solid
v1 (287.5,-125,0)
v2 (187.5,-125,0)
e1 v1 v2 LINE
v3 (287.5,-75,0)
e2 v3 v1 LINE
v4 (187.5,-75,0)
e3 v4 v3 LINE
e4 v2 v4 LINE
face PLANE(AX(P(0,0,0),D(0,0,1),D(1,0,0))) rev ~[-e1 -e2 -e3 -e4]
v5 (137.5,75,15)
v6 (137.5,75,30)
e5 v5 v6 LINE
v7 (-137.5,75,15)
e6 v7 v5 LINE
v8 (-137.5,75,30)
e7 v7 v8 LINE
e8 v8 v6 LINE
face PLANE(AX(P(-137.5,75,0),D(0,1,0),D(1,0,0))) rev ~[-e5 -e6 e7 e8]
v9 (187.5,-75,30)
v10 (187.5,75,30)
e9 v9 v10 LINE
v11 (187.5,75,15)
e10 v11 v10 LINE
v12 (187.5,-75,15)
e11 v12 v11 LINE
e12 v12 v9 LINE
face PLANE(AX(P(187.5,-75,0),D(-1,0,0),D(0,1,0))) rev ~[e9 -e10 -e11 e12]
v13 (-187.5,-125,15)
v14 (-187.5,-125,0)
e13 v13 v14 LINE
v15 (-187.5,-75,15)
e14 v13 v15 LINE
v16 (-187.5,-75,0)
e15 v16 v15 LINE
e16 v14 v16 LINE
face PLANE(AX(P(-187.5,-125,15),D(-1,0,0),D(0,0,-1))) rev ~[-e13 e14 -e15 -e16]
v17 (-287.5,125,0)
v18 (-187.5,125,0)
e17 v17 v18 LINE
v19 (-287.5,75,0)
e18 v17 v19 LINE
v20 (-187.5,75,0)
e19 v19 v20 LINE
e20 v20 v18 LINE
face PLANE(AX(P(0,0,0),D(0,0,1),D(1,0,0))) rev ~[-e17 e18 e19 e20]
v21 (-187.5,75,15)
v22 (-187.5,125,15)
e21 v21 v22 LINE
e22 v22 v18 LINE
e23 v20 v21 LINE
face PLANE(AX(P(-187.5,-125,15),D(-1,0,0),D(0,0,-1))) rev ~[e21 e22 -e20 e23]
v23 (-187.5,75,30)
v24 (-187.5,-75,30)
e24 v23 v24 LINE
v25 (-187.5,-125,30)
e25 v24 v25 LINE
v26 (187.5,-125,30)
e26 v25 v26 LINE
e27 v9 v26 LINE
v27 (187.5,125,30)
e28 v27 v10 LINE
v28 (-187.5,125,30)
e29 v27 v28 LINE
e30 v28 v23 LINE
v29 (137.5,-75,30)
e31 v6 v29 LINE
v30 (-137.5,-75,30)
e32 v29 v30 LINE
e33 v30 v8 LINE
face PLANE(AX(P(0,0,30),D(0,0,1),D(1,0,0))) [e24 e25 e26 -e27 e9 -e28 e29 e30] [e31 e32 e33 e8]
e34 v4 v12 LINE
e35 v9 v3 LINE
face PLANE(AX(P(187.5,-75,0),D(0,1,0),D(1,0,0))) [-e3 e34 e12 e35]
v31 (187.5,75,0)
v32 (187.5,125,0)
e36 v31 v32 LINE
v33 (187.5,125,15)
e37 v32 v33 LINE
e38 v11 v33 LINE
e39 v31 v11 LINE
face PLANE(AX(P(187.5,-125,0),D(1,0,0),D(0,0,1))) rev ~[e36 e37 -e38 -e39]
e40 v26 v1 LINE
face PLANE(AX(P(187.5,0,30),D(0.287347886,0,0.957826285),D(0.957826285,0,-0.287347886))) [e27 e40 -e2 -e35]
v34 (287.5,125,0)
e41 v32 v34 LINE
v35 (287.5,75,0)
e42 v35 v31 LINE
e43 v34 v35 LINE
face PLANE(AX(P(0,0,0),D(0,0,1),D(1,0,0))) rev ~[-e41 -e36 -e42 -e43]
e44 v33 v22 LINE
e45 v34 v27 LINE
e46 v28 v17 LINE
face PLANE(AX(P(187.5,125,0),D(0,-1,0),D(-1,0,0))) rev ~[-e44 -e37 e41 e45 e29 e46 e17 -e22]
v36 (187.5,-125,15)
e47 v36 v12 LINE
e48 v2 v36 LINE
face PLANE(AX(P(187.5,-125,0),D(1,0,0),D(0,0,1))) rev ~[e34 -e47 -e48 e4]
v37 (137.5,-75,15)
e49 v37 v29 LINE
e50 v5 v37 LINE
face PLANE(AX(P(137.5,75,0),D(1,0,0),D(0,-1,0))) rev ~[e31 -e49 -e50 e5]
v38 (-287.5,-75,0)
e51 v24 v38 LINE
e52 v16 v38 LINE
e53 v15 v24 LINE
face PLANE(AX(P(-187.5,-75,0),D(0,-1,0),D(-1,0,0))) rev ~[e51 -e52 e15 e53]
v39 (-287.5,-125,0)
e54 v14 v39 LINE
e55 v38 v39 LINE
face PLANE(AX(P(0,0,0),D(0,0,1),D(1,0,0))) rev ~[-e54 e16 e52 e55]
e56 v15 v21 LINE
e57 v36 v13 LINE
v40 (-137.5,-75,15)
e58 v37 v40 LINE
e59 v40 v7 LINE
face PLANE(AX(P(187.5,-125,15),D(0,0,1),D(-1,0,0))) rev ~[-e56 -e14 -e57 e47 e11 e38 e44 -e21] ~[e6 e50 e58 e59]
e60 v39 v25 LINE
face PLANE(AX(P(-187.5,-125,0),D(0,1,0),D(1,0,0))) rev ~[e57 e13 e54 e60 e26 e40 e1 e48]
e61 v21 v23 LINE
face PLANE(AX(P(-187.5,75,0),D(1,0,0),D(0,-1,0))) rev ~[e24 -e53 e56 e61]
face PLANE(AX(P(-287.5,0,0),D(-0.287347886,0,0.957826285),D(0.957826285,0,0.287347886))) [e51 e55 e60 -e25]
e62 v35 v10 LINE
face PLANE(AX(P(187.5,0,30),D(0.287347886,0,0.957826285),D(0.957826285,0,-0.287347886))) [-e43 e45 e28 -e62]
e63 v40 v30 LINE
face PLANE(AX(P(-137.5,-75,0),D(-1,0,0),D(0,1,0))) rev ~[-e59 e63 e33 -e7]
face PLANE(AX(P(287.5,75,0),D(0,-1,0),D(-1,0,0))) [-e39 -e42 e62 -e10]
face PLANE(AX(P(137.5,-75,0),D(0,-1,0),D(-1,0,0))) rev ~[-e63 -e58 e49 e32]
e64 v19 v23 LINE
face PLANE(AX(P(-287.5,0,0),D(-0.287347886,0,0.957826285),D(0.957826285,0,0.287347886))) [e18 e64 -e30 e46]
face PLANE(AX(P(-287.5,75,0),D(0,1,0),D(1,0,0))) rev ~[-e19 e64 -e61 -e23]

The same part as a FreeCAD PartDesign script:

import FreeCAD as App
import Part
import Sketcher
from FreeCAD import Vector
Q = App.Units.Quantity

doc = App.newDocument("Part")
body = doc.addObject("PartDesign::Body", "Body")

# Sketch on XY plane
sketch1 = doc.addObject("Sketcher::SketchObject", "Sketch")
body.addObject(sketch1)
sketch1.AttachmentSupport = (doc.XY_Plane, [""])
sketch1.MapMode = "FlatFace"
sketch1.addGeometry(Part.LineSegment(Vector(188, -75, 0), Vector(188, 75, 0)), False)
sketch1.addGeometry(Part.LineSegment(Vector(188, 75, 0), Vector(288, 75, 0)), False)
sketch1.addGeometry(Part.LineSegment(Vector(288, 75, 0), Vector(288, 125, 0)), False)
sketch1.addGeometry(Part.LineSegment(Vector(288, 125, 0), Vector(-288, 125, 0)), False)
sketch1.addGeometry(Part.LineSegment(Vector(-288, 125, 0), Vector(-288, 75, 0)), False)
sketch1.addGeometry(Part.LineSegment(Vector(-288, 75, 0), Vector(-188, 75, 0)), False)
sketch1.addGeometry(Part.LineSegment(Vector(-188, 75, 0), Vector(-188, -75, 0)), False)
sketch1.addGeometry(Part.LineSegment(Vector(-188, -75, 0), Vector(-288, -75, 0)), False)
sketch1.addGeometry(Part.LineSegment(Vector(-288, -75, 0), Vector(-288, -125, 0)), False)
sketch1.addGeometry(Part.LineSegment(Vector(-288, -125, 0), Vector(288, -125, 0)), False)
sketch1.addGeometry(Part.LineSegment(Vector(288, -125, 0), Vector(288, -75, 0)), False)
sketch1.addGeometry(Part.LineSegment(Vector(288, -75, 0), Vector(188, -75, 0)), False)
sketch1.addGeometry(Part.LineSegment(Vector(138, 75, 0), Vector(138, -75, 0)), False)
sketch1.addGeometry(Part.LineSegment(Vector(138, -75, 0), Vector(-138, -75, 0)), False)
sketch1.addGeometry(Part.LineSegment(Vector(-138, -75, 0), Vector(-138, 75, 0)), False)
sketch1.addGeometry(Part.LineSegment(Vector(-138, 75, 0), Vector(138, 75, 0)), False)
sketch1.addConstraint(Sketcher.Constraint("Coincident", 0, 2, 1, 1))
sketch1.addConstraint(Sketcher.Constraint("Coincident", 1, 2, 2, 1))
sketch1.addConstraint(Sketcher.Constraint("Coincident", 2, 2, 3, 1))
sketch1.addConstraint(Sketcher.Constraint("Coincident", 3, 2, 4, 1))
sketch1.addConstraint(Sketcher.Constraint("Coincident", 4, 2, 5, 1))
sketch1.addConstraint(Sketcher.Constraint("Coincident", 5, 2, 6, 1))
sketch1.addConstraint(Sketcher.Constraint("Coincident", 6, 2, 7, 1))
sketch1.addConstraint(Sketcher.Constraint("Coincident", 7, 2, 8, 1))
sketch1.addConstraint(Sketcher.Constraint("Coincident", 8, 2, 9, 1))
sketch1.addConstraint(Sketcher.Constraint("Coincident", 9, 2, 10, 1))
sketch1.addConstraint(Sketcher.Constraint("Coincident", 10, 2, 11, 1))
sketch1.addConstraint(Sketcher.Constraint("Coincident", 11, 2, 0, 1))
sketch1.addConstraint(Sketcher.Constraint("Coincident", 12, 2, 13, 1))
sketch1.addConstraint(Sketcher.Constraint("Coincident", 13, 2, 14, 1))
sketch1.addConstraint(Sketcher.Constraint("Coincident", 14, 2, 15, 1))
sketch1.addConstraint(Sketcher.Constraint("Coincident", 15, 2, 12, 1))
sketch1.addConstraint(Sketcher.Constraint("Vertical", 0))
sketch1.addConstraint(Sketcher.Constraint("Horizontal", 1))
sketch1.addConstraint(Sketcher.Constraint("Vertical", 2))
sketch1.addConstraint(Sketcher.Constraint("Horizontal", 3))
sketch1.addConstraint(Sketcher.Constraint("Vertical", 4))
sketch1.addConstraint(Sketcher.Constraint("Horizontal", 5))
sketch1.addConstraint(Sketcher.Constraint("Vertical", 6))
sketch1.addConstraint(Sketcher.Constraint("Horizontal", 7))
sketch1.addConstraint(Sketcher.Constraint("Vertical", 8))
sketch1.addConstraint(Sketcher.Constraint("Horizontal", 9))
sketch1.addConstraint(Sketcher.Constraint("Vertical", 10))
sketch1.addConstraint(Sketcher.Constraint("Horizontal", 11))
sketch1.addConstraint(Sketcher.Constraint("Vertical", 12))
sketch1.addConstraint(Sketcher.Constraint("Horizontal", 13))
sketch1.addConstraint(Sketcher.Constraint("Vertical", 14))
sketch1.addConstraint(Sketcher.Constraint("Horizontal", 15))
sketch1.addConstraint(Sketcher.Constraint("Symmetric", 0, 2, 6, 2, -1, 1))
sketch1.addConstraint(Sketcher.Constraint("Symmetric", 2, 2, 8, 2, -1, 1))
sketch1.addConstraint(Sketcher.Constraint("Symmetric", 4, 2, 10, 2, -1, 1))
sketch1.addConstraint(Sketcher.Constraint("Symmetric", 12, 2, 14, 2, -1, 1))
sketch1.addConstraint(Sketcher.Constraint("Symmetric", 1, 2, 4, 2, -2))
sketch1.addConstraint(Sketcher.Constraint("Horizontal", 11, 2, 12, 2))
sketch1.addConstraint(Sketcher.Constraint("DistanceX", 1, 1, 1, 2, Q("100 mm")))
sketch1.addConstraint(Sketcher.Constraint("DistanceX", 13, 2, 13, 1, Q("275 mm")))
sketch1.addConstraint(Sketcher.Constraint("DistanceY", 0, 1, 0, 2, Q("150 mm")))
sketch1.addConstraint(Sketcher.Constraint("DistanceY", 2, 1, 2, 2, Q("50 mm")))
sketch1.addConstraint(Sketcher.Constraint("DistanceX", 12, 2, 11, 2, Q("50 mm")))
pad1 = doc.addObject("PartDesign::Pad", "Pad")
body.addObject(pad1)
pad1.Profile = sketch1
pad1.Length = 30

# Sketch on XZ plane
sketch2 = doc.addObject("Sketcher::SketchObject", "Sketch001")
body.addObject(sketch2)
sketch2.AttachmentSupport = (doc.XZ_Plane, [""])
sketch2.MapMode = "FlatFace"
sketch2.addGeometry(Part.LineSegment(Vector(-288, 30, 0), Vector(-288, 0, 0)), False)
sketch2.addGeometry(Part.LineSegment(Vector(-288, 0, 0), Vector(-188, 30, 0)), False)
sketch2.addGeometry(Part.LineSegment(Vector(-188, 30, 0), Vector(-288, 30, 0)), False)
sketch2.addGeometry(Part.LineSegment(Vector(288, 30, 0), Vector(188, 30, 0)), False)
sketch2.addGeometry(Part.LineSegment(Vector(188, 30, 0), Vector(288, 0, 0)), False)
sketch2.addGeometry(Part.LineSegment(Vector(288, 0, 0), Vector(288, 30, 0)), False)
sketch2.addConstraint(Sketcher.Constraint("Coincident", 0, 2, 1, 1))
sketch2.addConstraint(Sketcher.Constraint("Coincident", 1, 2, 2, 1))
sketch2.addConstraint(Sketcher.Constraint("Coincident", 2, 2, 0, 1))
sketch2.addConstraint(Sketcher.Constraint("Coincident", 3, 2, 4, 1))
sketch2.addConstraint(Sketcher.Constraint("Coincident", 4, 2, 5, 1))
sketch2.addConstraint(Sketcher.Constraint("Coincident", 5, 2, 3, 1))
sketch2.addConstraint(Sketcher.Constraint("Vertical", 0))
sketch2.addConstraint(Sketcher.Constraint("Horizontal", 2))
sketch2.addConstraint(Sketcher.Constraint("Horizontal", 3))
sketch2.addConstraint(Sketcher.Constraint("Vertical", 5))
sketch2.addConstraint(Sketcher.Constraint("Symmetric", 0, 2, 4, 2, -1, 1))
sketch2.addConstraint(Sketcher.Constraint("Symmetric", 1, 2, 3, 2, -2))
sketch2.addConstraint(Sketcher.Constraint("PointOnObject", 0, 2, -1))
sketch2.addConstraint(Sketcher.Constraint("DistanceX", 2, 2, 2, 1, Q("100 mm")))
sketch2.addConstraint(Sketcher.Constraint("DistanceY", 0, 2, 0, 1, Q("30 mm")))
sketch2.addConstraint(Sketcher.Constraint("DistanceX", 1, 2, 3, 2, Q("375 mm")))
pocket1 = doc.addObject("PartDesign::Pocket", "Pocket")
body.addObject(pocket1)
pocket1.Profile = sketch2
pocket1.Type = "ThroughAll"
pocket1.Midplane = True

# Sketch on XZ plane
sketch3 = doc.addObject("Sketcher::SketchObject", "Sketch002")
body.addObject(sketch3)
sketch3.AttachmentSupport = (doc.XZ_Plane, [""])
sketch3.MapMode = "FlatFace"
sketch3.AttachmentOffset = App.Placement(Vector(0, 0, 125), App.Rotation())
sketch3.addGeometry(Part.LineSegment(Vector(-188, 0, 0), Vector(188, 0, 0)), False)
sketch3.addGeometry(Part.LineSegment(Vector(188, 0, 0), Vector(188, 15, 0)), False)
sketch3.addGeometry(Part.LineSegment(Vector(188, 15, 0), Vector(-188, 15, 0)), False)
sketch3.addGeometry(Part.LineSegment(Vector(-188, 15, 0), Vector(-188, 0, 0)), False)
sketch3.addConstraint(Sketcher.Constraint("Coincident", 0, 2, 1, 1))
sketch3.addConstraint(Sketcher.Constraint("Coincident", 1, 2, 2, 1))
sketch3.addConstraint(Sketcher.Constraint("Coincident", 2, 2, 3, 1))
sketch3.addConstraint(Sketcher.Constraint("Coincident", 3, 2, 0, 1))
sketch3.addConstraint(Sketcher.Constraint("Horizontal", 0))
sketch3.addConstraint(Sketcher.Constraint("Vertical", 1))
sketch3.addConstraint(Sketcher.Constraint("Horizontal", 2))
sketch3.addConstraint(Sketcher.Constraint("Vertical", 3))
sketch3.addConstraint(Sketcher.Constraint("Symmetric", 0, 2, 3, 2, -1, 1))
sketch3.addConstraint(Sketcher.Constraint("DistanceX", 0, 1, 0, 2, Q("375 mm")))
sketch3.addConstraint(Sketcher.Constraint("DistanceY", 1, 1, 1, 2, Q("15 mm")))
pocket2 = doc.addObject("PartDesign::Pocket", "Pocket001")
body.addObject(pocket2)
pocket2.Profile = sketch3
pocket2.Type = "ThroughAll"

doc.recompute()
